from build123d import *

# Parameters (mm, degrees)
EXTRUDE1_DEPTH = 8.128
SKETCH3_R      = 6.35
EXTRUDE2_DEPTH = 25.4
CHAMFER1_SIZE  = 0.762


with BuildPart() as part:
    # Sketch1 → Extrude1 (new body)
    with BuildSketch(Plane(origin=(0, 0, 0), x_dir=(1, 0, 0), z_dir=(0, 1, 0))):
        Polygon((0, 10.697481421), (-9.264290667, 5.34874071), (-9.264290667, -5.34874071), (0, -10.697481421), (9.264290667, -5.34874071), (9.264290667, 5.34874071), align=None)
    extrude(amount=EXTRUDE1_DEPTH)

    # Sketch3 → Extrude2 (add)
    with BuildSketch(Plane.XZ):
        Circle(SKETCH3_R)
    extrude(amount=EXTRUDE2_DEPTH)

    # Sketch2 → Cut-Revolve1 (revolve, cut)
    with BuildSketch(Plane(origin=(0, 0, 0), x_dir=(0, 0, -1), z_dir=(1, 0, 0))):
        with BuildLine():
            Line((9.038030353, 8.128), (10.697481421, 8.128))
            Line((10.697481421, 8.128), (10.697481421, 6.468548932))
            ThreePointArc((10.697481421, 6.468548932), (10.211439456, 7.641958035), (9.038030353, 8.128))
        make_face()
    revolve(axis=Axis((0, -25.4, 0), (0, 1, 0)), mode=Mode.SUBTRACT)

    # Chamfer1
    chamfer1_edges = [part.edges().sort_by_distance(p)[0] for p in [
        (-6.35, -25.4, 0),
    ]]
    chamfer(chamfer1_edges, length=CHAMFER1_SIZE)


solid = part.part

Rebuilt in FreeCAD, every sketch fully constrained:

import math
import FreeCAD as App
import Part
import Sketcher

V = App.Vector
Q = App.Units.Quantity


def edges_at(feature, points):
    """Names of the edges that pass closest to the given points."""
    edges = feature.Shape.Edges
    near = lambda p: min(range(len(edges)), key=lambda i: edges[i].distToShape(Part.Vertex(*p))[0])
    return sorted({f"Edge{near(p) + 1}" for p in points})

doc = App.newDocument("Part")
body = doc.addObject("PartDesign::Body", "Body")

sketch1 = body.newObject("Sketcher::SketchObject", "Sketch")
sketch1.AttachmentSupport = (doc.getObject("XZ_Plane"), [""])
sketch1.MapMode = "FlatFace"
sketch1.addGeometry([
    Part.LineSegment(V(0, -11, 0), V(-9, -5, 0)),
    Part.LineSegment(V(-9, -5, 0), V(-9, 5, 0)),
    Part.LineSegment(V(-9, 5, 0), V(0, 11, 0)),
    Part.LineSegment(V(0, 11, 0), V(9, 5, 0)),
    Part.LineSegment(V(9, 5, 0), V(9, -5, 0)),
    Part.LineSegment(V(9, -5, 0), V(0, -11, 0)),
], False)
sketch1.addConstraint([
    Sketcher.Constraint("Coincident", 0, 2, 1, 1),
    Sketcher.Constraint("Coincident", 1, 2, 2, 1),
    Sketcher.Constraint("Coincident", 2, 2, 3, 1),
    Sketcher.Constraint("Coincident", 3, 2, 4, 1),
    Sketcher.Constraint("Coincident", 4, 2, 5, 1),
    Sketcher.Constraint("Coincident", 5, 2, 0, 1),
    Sketcher.Constraint("Vertical", 1),
    Sketcher.Constraint("Vertical", 4),
    Sketcher.Constraint("Symmetric", 0, 2, 3, 2, -1, 1),
    Sketcher.Constraint("Symmetric", 2, 2, 5, 2, -1, 1),
    Sketcher.Constraint("PointOnObject", 2, 2, -2),
    Sketcher.Constraint("Parallel", 2, 5),
    Sketcher.Constraint("Horizontal", 1, 2, 3, 2),
    Sketcher.Constraint("Angle", 0, Q("150 deg")),
    Sketcher.Constraint("DistanceY", 1, 1, 1, 2, 10.697481),
    Sketcher.Constraint("Distance", 0, 10.697481),
])
pad1 = body.newObject("PartDesign::Pad", "Pad")
pad1.Profile = sketch1
pad1.Length = Q("0.32 in")
pad1.Reversed = True

sketch2 = body.newObject("Sketcher::SketchObject", "Sketch001")
sketch2.AttachmentSupport = (doc.getObject("XZ_Plane"), [""])
sketch2.MapMode = "FlatFace"
sketch2.addGeometry(Part.Circle(V(0, 0, 0), V(0, 0, 1), 6), False)
sketch2.addConstraint([
    Sketcher.Constraint("Coincident", 0, 3, -1, 1),
    Sketcher.Constraint("Diameter", 0, Q("0.5 in")),
])
pad2 = body.newObject("PartDesign::Pad", "Pad001")
pad2.Profile = sketch2
pad2.Length = Q("1 in")

sketch3 = body.newObject("Sketcher::SketchObject", "Sketch002")
sketch3.AttachmentSupport = (doc.getObject("YZ_Plane"), [""])
sketch3.MapMode = "FlatFace"
sketch3.addGeometry([
    Part.LineSegment(V(8.1, -10.7, 0), V(8.1, -9, 0)),
    Part.ArcOfCircle(Part.Circle(V(6.5, -9, 0), V(0, 0, 1), 1.7), math.radians(-90), math.radians(0)),
    Part.LineSegment(V(6.5, -10.7, 0), V(8.1, -10.7, 0)),
], False)
sketch3.addConstraint([
    Sketcher.Constraint("Tangent", 0, 2, 1, 2),
    Sketcher.Constraint("Tangent", 1, 1, 2, 1),
    Sketcher.Constraint("Coincident", 2, 2, 0, 1),
    Sketcher.Constraint("Vertical", 0),
    Sketcher.Constraint("Horizontal", 2),
    Sketcher.Constraint("DistanceX", -1, 1, 0, 2, Q("0.32 in")),
    Sketcher.Constraint("Radius", 1, 1.659451),
    Sketcher.Constraint("DistanceY", 1, 3, -1, 1, 9.03803),
])
groove = body.newObject("PartDesign::Groove", "Groove")
groove.Profile = sketch3
groove.ReferenceAxis = (sketch3, ["H_Axis"])
groove.Angle = 360
doc.recompute()

chamfer = body.newObject("PartDesign::Chamfer", "Chamfer")
chamfer.Base = (groove, edges_at(groove, [(-6.35, -25.4, 0)]))
chamfer.Size = Q("0.03 in")

doc.recompute()
